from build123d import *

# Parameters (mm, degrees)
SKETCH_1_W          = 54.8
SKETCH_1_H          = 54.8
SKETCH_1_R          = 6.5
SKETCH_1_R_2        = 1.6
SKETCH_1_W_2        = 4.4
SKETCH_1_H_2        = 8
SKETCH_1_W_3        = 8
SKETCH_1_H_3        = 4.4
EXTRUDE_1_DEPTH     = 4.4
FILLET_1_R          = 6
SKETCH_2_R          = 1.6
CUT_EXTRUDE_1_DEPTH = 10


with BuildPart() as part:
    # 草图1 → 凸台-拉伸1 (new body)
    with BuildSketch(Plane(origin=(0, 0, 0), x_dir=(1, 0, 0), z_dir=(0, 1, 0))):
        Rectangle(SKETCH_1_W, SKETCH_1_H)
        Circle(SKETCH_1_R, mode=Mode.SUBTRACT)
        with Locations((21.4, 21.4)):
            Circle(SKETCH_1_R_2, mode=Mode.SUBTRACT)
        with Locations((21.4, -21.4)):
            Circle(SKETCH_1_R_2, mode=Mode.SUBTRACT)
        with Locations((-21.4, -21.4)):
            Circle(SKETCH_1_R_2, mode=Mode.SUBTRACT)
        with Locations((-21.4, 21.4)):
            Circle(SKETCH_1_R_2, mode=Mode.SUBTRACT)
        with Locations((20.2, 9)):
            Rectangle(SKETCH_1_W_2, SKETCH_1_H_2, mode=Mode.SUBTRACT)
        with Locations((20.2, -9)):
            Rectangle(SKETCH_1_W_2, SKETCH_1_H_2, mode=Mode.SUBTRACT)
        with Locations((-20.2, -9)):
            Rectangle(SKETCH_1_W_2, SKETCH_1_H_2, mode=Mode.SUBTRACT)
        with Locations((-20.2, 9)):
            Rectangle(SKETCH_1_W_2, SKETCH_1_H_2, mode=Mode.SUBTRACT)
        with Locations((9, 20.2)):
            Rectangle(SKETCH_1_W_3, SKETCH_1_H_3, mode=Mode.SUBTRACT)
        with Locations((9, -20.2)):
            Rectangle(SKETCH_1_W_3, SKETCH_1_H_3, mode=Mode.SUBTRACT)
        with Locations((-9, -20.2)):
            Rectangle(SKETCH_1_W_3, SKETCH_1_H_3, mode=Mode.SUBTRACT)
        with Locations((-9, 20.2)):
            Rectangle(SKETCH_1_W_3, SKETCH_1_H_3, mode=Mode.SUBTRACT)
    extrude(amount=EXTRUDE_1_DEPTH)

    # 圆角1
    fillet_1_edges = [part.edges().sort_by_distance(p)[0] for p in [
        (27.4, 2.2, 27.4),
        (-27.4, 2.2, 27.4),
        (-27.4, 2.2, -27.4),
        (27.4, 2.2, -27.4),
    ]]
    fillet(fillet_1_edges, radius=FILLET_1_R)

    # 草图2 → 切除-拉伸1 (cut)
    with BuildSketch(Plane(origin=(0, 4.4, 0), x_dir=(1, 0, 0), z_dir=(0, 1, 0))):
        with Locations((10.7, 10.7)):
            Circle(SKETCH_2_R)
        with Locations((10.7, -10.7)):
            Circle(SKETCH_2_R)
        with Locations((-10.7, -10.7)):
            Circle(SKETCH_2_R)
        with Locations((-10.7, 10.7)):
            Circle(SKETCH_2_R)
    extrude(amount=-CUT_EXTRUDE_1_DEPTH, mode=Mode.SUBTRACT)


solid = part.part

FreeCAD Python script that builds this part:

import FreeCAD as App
import Part
import Sketcher

V = App.Vector
Q = App.Units.Quantity


def edges_at(feature, points):
    """Names of the edges that pass closest to the given points."""
    edges = feature.Shape.Edges
    near = lambda p: min(range(len(edges)), key=lambda i: edges[i].distToShape(Part.Vertex(*p))[0])
    return sorted({f"Edge{near(p) + 1}" for p in points})

doc = App.newDocument("Part")
body = doc.addObject("PartDesign::Body", "Body")

# Sketch on XZ plane
sketch1 = body.newObject("Sketcher::SketchObject", "Sketch")
sketch1.AttachmentSupport = (doc.getObject("XZ_Plane"), [""])
sketch1.MapMode = "FlatFace"
sketch1.addGeometry([
    Part.LineSegment(V(-27.4, -27.4, 0), V(-27.4, 27.4, 0)),  # 0
    Part.LineSegment(V(-27.4, 27.4, 0), V(27.4, 27.4, 0)),  # 1
    Part.LineSegment(V(27.4, 27.4, 0), V(27.4, -27.4, 0)),  # 2
    Part.LineSegment(V(27.4, -27.4, 0), V(-27.4, -27.4, 0)),  # 3
    Part.Circle(V(-21.4, 21.4, 0), V(0, 0, 1), 1.6),  # 4
    Part.LineSegment(V(-5, 22.4, 0), V(-13, 22.4, 0)),  # 5
    Part.LineSegment(V(-13, 22.4, 0), V(-13, 18, 0)),  # 6
    Part.LineSegment(V(-13, 18, 0), V(-5, 18, 0)),  # 7
    Part.LineSegment(V(-5, 18, 0), V(-5, 22.4, 0)),  # 8
    Part.LineSegment(V(-18, 13, 0), V(-22.4, 13, 0)),  # 9
    Part.LineSegment(V(-22.4, 13, 0), V(-22.4, 5, 0)),  # 10
    Part.LineSegment(V(-22.4, 5, 0), V(-18, 5, 0)),  # 11
    Part.LineSegment(V(-18, 5, 0), V(-18, 13, 0)),  # 12
    Part.LineSegment(V(13, 22.4, 0), V(5, 22.4, 0)),  # 13
    Part.LineSegment(V(5, 22.4, 0), V(5, 18, 0)),  # 14
    Part.LineSegment(V(5, 18, 0), V(13, 18, 0)),  # 15
    Part.LineSegment(V(13, 18, 0), V(13, 22.4, 0)),  # 16
    Part.Circle(V(21.4, 21.4, 0), V(0, 0, 1), 1.6),  # 17
    Part.LineSegment(V(22.4, 13, 0), V(18, 13, 0)),  # 18
    Part.LineSegment(V(18, 13, 0), V(18, 5, 0)),  # 19
    Part.LineSegment(V(18, 5, 0), V(22.4, 5, 0)),  # 20
    Part.LineSegment(V(22.4, 5, 0), V(22.4, 13, 0)),  # 21
    Part.LineSegment(V(-18, -5, 0), V(-22.4, -5, 0)),  # 22
    Part.LineSegment(V(-22.4, -5, 0), V(-22.4, -13, 0)),  # 23
    Part.LineSegment(V(-22.4, -13, 0), V(-18, -13, 0)),  # 24
    Part.LineSegment(V(-18, -13, 0), V(-18, -5, 0)),  # 25
    Part.Circle(V(-21.4, -21.4, 0), V(0, 0, 1), 1.6),  # 26
    Part.LineSegment(V(-5, -18, 0), V(-13, -18, 0)),  # 27
    Part.LineSegment(V(-13, -18, 0), V(-13, -22.4, 0)),  # 28
    Part.LineSegment(V(-13, -22.4, 0), V(-5, -22.4, 0)),  # 29
    Part.LineSegment(V(-5, -22.4, 0), V(-5, -18, 0)),  # 30
    Part.Circle(V(0, 0, 0), V(0, 0, 1), 6.5),  # 31
    Part.LineSegment(V(22.4, -5, 0), V(18, -5, 0)),  # 32
    Part.LineSegment(V(18, -5, 0), V(18, -13, 0)),  # 33
    Part.LineSegment(V(18, -13, 0), V(22.4, -13, 0)),  # 34
    Part.LineSegment(V(22.4, -13, 0), V(22.4, -5, 0)),  # 35
    Part.LineSegment(V(13, -18, 0), V(5, -18, 0)),  # 36
    Part.LineSegment(V(5, -18, 0), V(5, -22.4, 0)),  # 37
    Part.LineSegment(V(5, -22.4, 0), V(13, -22.4, 0)),  # 38
    Part.LineSegment(V(13, -22.4, 0), V(13, -18, 0)),  # 39
    Part.Circle(V(21.4, -21.4, 0), V(0, 0, 1), 1.6),  # 40
], False)
sketch1.addConstraint([
    Sketcher.Constraint("Coincident", 0, 2, 1, 1),
    Sketcher.Constraint("Coincident", 1, 2, 2, 1),
    Sketcher.Constraint("Coincident", 2, 2, 3, 1),
    Sketcher.Constraint("Coincident", 3, 2, 0, 1),
    Sketcher.Constraint("Coincident", 5, 2, 6, 1),
    Sketcher.Constraint("Coincident", 6, 2, 7, 1),
    Sketcher.Constraint("Coincident", 7, 2, 8, 1),
    Sketcher.Constraint("Coincident", 8, 2, 5, 1),
    Sketcher.Constraint("Coincident", 9, 2, 10, 1),
    Sketcher.Constraint("Coincident", 10, 2, 11, 1),
    Sketcher.Constraint("Coincident", 11, 2, 12, 1),
    Sketcher.Constraint("Coincident", 12, 2, 9, 1),
    Sketcher.Constraint("Coincident", 13, 2, 14, 1),
    Sketcher.Constraint("Coincident", 14, 2, 15, 1),
    Sketcher.Constraint("Coincident", 15, 2, 16, 1),
    Sketcher.Constraint("Coincident", 16, 2, 13, 1),
    Sketcher.Constraint("Coincident", 18, 2, 19, 1),
    Sketcher.Constraint("Coincident", 19, 2, 20, 1),
    Sketcher.Constraint("Coincident", 20, 2, 21, 1),
    Sketcher.Constraint("Coincident", 21, 2, 18, 1),
    Sketcher.Constraint("Coincident", 22, 2, 23, 1),
    Sketcher.Constraint("Coincident", 23, 2, 24, 1),
    Sketcher.Constraint("Coincident", 24, 2, 25, 1),
    Sketcher.Constraint("Coincident", 25, 2, 22, 1),
    Sketcher.Constraint("Coincident", 27, 2, 28, 1),
    Sketcher.Constraint("Coincident", 28, 2, 29, 1),
    Sketcher.Constraint("Coincident", 29, 2, 30, 1),
    Sketcher.Constraint("Coincident", 30, 2, 27, 1),
    Sketcher.Constraint("Coincident", 32, 2, 33, 1),
    Sketcher.Constraint("Coincident", 33, 2, 34, 1),
    Sketcher.Constraint("Coincident", 34, 2, 35, 1),
    Sketcher.Constraint("Coincident", 35, 2, 32, 1),
    Sketcher.Constraint("Coincident", 36, 2, 37, 1),
    Sketcher.Constraint("Coincident", 37, 2, 38, 1),
    Sketcher.Constraint("Coincident", 38, 2, 39, 1),
    Sketcher.Constraint("Coincident", 39, 2, 36, 1),
    Sketcher.Constraint("Vertical", 0),
    Sketcher.Constraint("Horizontal", 1),
    Sketcher.Constraint("Vertical", 2),
    Sketcher.Constraint("Horizontal", 3),
    Sketcher.Constraint("Horizontal", 5),
    Sketcher.Constraint("Vertical", 6),
    Sketcher.Constraint("Horizontal", 7),
    Sketcher.Constraint("Vertical", 8),
    Sketcher.Constraint("Horizontal", 9),
    Sketcher.Constraint("Vertical", 10),
    Sketcher.Constraint("Horizontal", 11),
    Sketcher.Constraint("Vertical", 12),
    Sketcher.Constraint("Horizontal", 13),
    Sketcher.Constraint("Vertical", 14),
    Sketcher.Constraint("Horizontal", 15),
    Sketcher.Constraint("Vertical", 16),
    Sketcher.Constraint("Horizontal", 18),
    Sketcher.Constraint("Vertical", 19),
    Sketcher.Constraint("Horizontal", 20),
    Sketcher.Constraint("Vertical", 21),
    Sketcher.Constraint("Horizontal", 22),
    Sketcher.Constraint("Vertical", 23),
    Sketcher.Constraint("Horizontal", 24),
    Sketcher.Constraint("Vertical", 25),
    Sketcher.Constraint("Horizontal", 27),
    Sketcher.Constraint("Vertical", 28),
    Sketcher.Constraint("Horizontal", 29),
    Sketcher.Constraint("Vertical", 30),
    Sketcher.Constraint("Horizontal", 32),
    Sketcher.Constraint("Vertical", 33),
    Sketcher.Constraint("Horizontal", 34),
    Sketcher.Constraint("Vertical", 35),
    Sketcher.Constraint("Horizontal", 36),
    Sketcher.Constraint("Vertical", 37),
    Sketcher.Constraint("Horizontal", 38),
    Sketcher.Constraint("Vertical", 39),
    Sketcher.Constraint("Coincident", 31, 3, -1, 1),
    Sketcher.Constraint("Equal", 4, 17),
    Sketcher.Constraint("Equal", 17, 26),
    Sketcher.Constraint("Equal", 26, 40),
    Sketcher.Constraint("Symmetric", 17, 3, 26, 3, -1, 1),
    Sketcher.Constraint("Symmetric", 4, 3, 40, 3, -1, 1),
    Sketcher.Constraint("Symmetric", 0, 2, 2, 2, -1, 1),
    Sketcher.Constraint("Symmetric", 20, 2, 22, 2, -1, 1),
    Sketcher.Constraint("Symmetric", 18, 2, 24, 2, -1, 1),
    Sketcher.Constraint("Symmetric", 15, 2, 27, 2, -1, 1),
    Sketcher.Constraint("Symmetric", 13, 2, 29, 2, -1, 1),
    Sketcher.Constraint("Symmetric", 11, 2, 32, 2, -1, 1),
    Sketcher.Constraint("Symmetric", 9, 2, 34, 2, -1, 1),
    Sketcher.Constraint("Symmetric", 7, 2, 36, 2, -1, 1),
    Sketcher.Constraint("Symmetric", 5, 2, 38, 2, -1, 1),
    Sketcher.Constraint("Symmetric", 4, 3, 17, 3, -2),
    Sketcher.Constraint("Symmetric", 8, 2, 13, 2, -2),
    Sketcher.Constraint("Symmetric", 6, 2, 15, 2, -2),
    Sketcher.Constraint("Symmetric", 12, 2, 18, 2, -2),
    Sketcher.Constraint("Symmetric", 10, 2, 20, 2, -2),
    Sketcher.Constraint("Equal", 3, 0),
    Sketcher.Constraint("Equal", 34, 6),
    Sketcher.Constraint("Equal", 38, 10),
    Sketcher.Constraint("Diameter", 31, Q("13 mm")),
    Sketcher.Constraint("Diameter", 4, Q("3.2 mm")),
    Sketcher.Constraint("DistanceX", 5, 2, 5, 1, Q("8 mm")),
    Sketcher.Constraint("DistanceX", 1, 1, 1, 2, Q("54.8 mm")),
    Sketcher.Constraint("DistanceX", 9, 2, 9, 1, Q("4.4 mm")),
    Sketcher.Constraint("DistanceX", 5, 2, -1, 1, Q("13 mm")),
    Sketcher.Constraint("DistanceY", -1, 1, 6, 2, Q("18 mm")),
    Sketcher.Constraint("DistanceY", -1, 1, 9, 2, Q("13 mm")),
    Sketcher.Constraint("DistanceX", 11, 2, -1, 1, Q("18 mm")),
    Sketcher.Constraint("DistanceX", 0, 2, 4, 3, Q("6 mm")),
    Sketcher.Constraint("DistanceY", 4, 3, 0, 2, Q("6 mm")),
])
pad1 = body.newObject("PartDesign::Pad", "Pad")
pad1.Profile = sketch1
pad1.Length = 4.4
pad1.Reversed = True
doc.recompute()

fillet = body.newObject("PartDesign::Fillet", "Fillet")
fillet.Base = (pad1, edges_at(pad1, [
    (27.4, 2.2, 27.4),
    (-27.4, 2.2, 27.4),
    (-27.4, 2.2, -27.4),
    (27.4, 2.2, -27.4),
]))
fillet.Radius = 6

# Sketch on XZ plane
sketch2 = body.newObject("Sketcher::SketchObject", "Sketch001")
sketch2.AttachmentSupport = (doc.getObject("XZ_Plane"), [""])
sketch2.MapMode = "FlatFace"
sketch2.AttachmentOffset = App.Placement(V(0, 0, -4.4), App.Rotation())
sketch2.addGeometry([
    Part.Circle(V(10.7, -10.7, 0), V(0, 0, 1), 1.6),
    Part.Circle(V(10.7, 10.7, 0), V(0, 0, 1), 1.6),
    Part.Circle(V(-10.7, 10.7, 0), V(0, 0, 1), 1.6),
    Part.Circle(V(-10.7, -10.7, 0), V(0, 0, 1), 1.6),
], False)
sketch2.addConstraint([
    Sketcher.Constraint("Equal", 0, 1),
    Sketcher.Constraint("Equal", 1, 2),
    Sketcher.Constraint("Equal", 2, 3),
    Sketcher.Constraint("Symmetric", 0, 3, 2, 3, -1, 1),
    Sketcher.Constraint("Symmetric", 1, 3, 3, 3, -1, 1),
    Sketcher.Constraint("Symmetric", 1, 3, 2, 3, -2),
    Sketcher.Constraint("Diameter", 0, Q("3.2 mm")),
    Sketcher.Constraint("DistanceX", -1, 1, 0, 3, Q("10.7 mm")),
    Sketcher.Constraint("DistanceY", 0, 3, -1, 1, Q("10.7 mm")),
])
pocket1 = body.newObject("PartDesign::Pocket", "Pocket")
pocket1.Profile = sketch2
pocket1.Length = 10
pocket1.Reversed = True

doc.recompute()
